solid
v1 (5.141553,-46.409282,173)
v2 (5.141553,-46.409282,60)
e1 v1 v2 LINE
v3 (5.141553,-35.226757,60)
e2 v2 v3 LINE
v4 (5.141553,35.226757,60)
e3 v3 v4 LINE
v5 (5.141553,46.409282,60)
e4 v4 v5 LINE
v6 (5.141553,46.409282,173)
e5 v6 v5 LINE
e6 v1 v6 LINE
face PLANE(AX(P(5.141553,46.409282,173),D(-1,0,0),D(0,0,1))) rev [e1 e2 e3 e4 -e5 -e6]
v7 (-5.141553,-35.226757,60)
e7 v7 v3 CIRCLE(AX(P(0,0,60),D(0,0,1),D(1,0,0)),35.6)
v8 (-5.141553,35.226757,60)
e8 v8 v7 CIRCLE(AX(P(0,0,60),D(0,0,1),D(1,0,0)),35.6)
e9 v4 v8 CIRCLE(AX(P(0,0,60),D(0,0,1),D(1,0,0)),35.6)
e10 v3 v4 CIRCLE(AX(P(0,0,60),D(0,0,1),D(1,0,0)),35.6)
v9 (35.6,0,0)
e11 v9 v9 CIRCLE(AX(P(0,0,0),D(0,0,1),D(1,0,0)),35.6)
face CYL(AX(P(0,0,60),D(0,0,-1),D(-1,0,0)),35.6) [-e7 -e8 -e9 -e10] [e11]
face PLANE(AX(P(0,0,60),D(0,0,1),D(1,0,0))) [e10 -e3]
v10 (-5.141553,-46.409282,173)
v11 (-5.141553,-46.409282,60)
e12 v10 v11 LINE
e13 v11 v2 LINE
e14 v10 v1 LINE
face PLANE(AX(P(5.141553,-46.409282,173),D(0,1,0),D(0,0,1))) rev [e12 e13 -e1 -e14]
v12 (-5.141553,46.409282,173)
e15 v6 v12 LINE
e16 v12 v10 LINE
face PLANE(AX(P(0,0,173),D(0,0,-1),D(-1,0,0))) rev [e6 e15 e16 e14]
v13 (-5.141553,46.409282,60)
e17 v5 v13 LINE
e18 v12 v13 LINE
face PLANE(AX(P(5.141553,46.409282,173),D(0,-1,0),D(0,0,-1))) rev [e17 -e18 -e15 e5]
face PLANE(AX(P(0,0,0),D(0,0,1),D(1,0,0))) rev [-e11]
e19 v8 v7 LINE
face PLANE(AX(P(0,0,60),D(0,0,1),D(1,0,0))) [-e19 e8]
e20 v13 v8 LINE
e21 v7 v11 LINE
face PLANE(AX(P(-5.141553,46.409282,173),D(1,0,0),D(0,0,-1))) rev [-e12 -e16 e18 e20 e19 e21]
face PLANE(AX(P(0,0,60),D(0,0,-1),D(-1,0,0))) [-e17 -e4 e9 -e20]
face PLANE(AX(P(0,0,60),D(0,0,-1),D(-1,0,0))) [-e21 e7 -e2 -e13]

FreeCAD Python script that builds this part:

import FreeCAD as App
import Part
import Sketcher

V = App.Vector
Q = App.Units.Quantity

doc = App.newDocument("Part")
body = doc.addObject("PartDesign::Body", "Body")

# Sketch on XY plane
sketch1 = body.newObject("Sketcher::SketchObject", "Sketch")
sketch1.AttachmentSupport = (doc.getObject("XY_Plane"), [""])
sketch1.MapMode = "FlatFace"
sketch1.addGeometry(Part.Circle(V(0, 0, 0), V(0, 0, 1), 36), False)
sketch1.addConstraint(Sketcher.Constraint("Coincident", 0, 3, -1, 1))
sketch1.addConstraint(Sketcher.Constraint("Diameter", 0, Q("71.2 mm")))
pad1 = body.newObject("PartDesign::Pad", "Pad")
pad1.Profile = sketch1
pad1.Length = 60

# Sketch on XY plane
sketch2 = body.newObject("Sketcher::SketchObject", "Sketch001")
sketch2.AttachmentSupport = (doc.getObject("XY_Plane"), [""])
sketch2.MapMode = "FlatFace"
sketch2.AttachmentOffset = App.Placement(V(0, 0, 60), App.Rotation())
sketch2.addGeometry(Part.LineSegment(V(-5, 46, 0), V(-5, -46, 0)), False)
sketch2.addGeometry(Part.LineSegment(V(-5, -46, 0), V(5, -46, 0)), False)
sketch2.addGeometry(Part.LineSegment(V(5, -46, 0), V(5, 46, 0)), False)
sketch2.addGeometry(Part.LineSegment(V(5, 46, 0), V(-5, 46, 0)), False)
sketch2.addConstraint(Sketcher.Constraint("Coincident", 0, 2, 1, 1))
sketch2.addConstraint(Sketcher.Constraint("Coincident", 1, 2, 2, 1))
sketch2.addConstraint(Sketcher.Constraint("Coincident", 2, 2, 3, 1))
sketch2.addConstraint(Sketcher.Constraint("Coincident", 3, 2, 0, 1))
sketch2.addConstraint(Sketcher.Constraint("Vertical", 0))
sketch2.addConstraint(Sketcher.Constraint("Horizontal", 1))
sketch2.addConstraint(Sketcher.Constraint("Vertical", 2))
sketch2.addConstraint(Sketcher.Constraint("Horizontal", 3))
sketch2.addConstraint(Sketcher.Constraint("Symmetric", 0, 2, 2, 2, -1, 1))
sketch2.addConstraint(Sketcher.Constraint("DistanceX", 1, 1, 1, 2, Q("10.283106 mm")))
sketch2.addConstraint(Sketcher.Constraint("DistanceY", 0, 2, 0, 1, Q("92.818565 mm")))
pad2 = body.newObject("PartDesign::Pad", "Pad001")
pad2.Profile = sketch2
pad2.Length = 113

doc.recompute()
